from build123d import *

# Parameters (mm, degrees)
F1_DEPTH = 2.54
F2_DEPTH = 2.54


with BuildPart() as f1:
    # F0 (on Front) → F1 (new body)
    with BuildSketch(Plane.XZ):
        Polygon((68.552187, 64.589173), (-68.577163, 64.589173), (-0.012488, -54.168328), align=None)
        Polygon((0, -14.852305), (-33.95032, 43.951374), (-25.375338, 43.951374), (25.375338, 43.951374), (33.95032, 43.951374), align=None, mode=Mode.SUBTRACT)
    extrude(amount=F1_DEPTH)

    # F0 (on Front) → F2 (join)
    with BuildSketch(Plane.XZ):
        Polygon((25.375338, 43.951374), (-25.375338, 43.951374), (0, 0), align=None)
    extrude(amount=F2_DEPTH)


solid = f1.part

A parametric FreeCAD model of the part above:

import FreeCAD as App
import Part
import Sketcher
from FreeCAD import Vector
Q = App.Units.Quantity


def add_polygon(sketch, points):
    """Adds a closed chain of lines whose ends are joined by coincident constraints."""
    first, n = sketch.GeometryCount, len(points)
    for a, b in zip(points, points[1:] + points[:1]):
        sketch.addGeometry(Part.LineSegment(App.Vector(*a, 0), App.Vector(*b, 0)), False)
    for i in range(n):
        sketch.addConstraint(Sketcher.Constraint("Coincident", first + i, 2, first + (i + 1) % n, 1))

doc = App.newDocument("Part")
body = doc.addObject("PartDesign::Body", "Body")

sketch1 = body.newObject("Sketcher::SketchObject", "Sketch")
sketch1.AttachmentSupport = (doc.getObject("XZ_Plane"), [""])
sketch1.MapMode = "FlatFace"
add_polygon(sketch1, [(69, 65), (-69, 65), (0, -54)])
add_polygon(sketch1, [(34, 44), (0, -15), (-34, 44)])
sketch1.addConstraint(Sketcher.Constraint("Horizontal", 0))
sketch1.addConstraint(Sketcher.Constraint("Horizontal", 5))
sketch1.addConstraint(Sketcher.Constraint("PointOnObject", 3, 2, -2))
sketch1.addConstraint(Sketcher.Constraint("Parallel", 2, 3))
sketch1.addConstraint(Sketcher.Constraint("Parallel", 1, 4))
sketch1.addConstraint(Sketcher.Constraint("Equal", 1, 2))
sketch1.addConstraint(Sketcher.Constraint("Angle", 1, Q("-60 deg")))
sketch1.addConstraint(Sketcher.Constraint("DistanceX", 0, 2, 0, 1, 137.12935))
sketch1.addConstraint(Sketcher.Constraint("DistanceX", 5, 1, 5, 2, 67.90064))
sketch1.addConstraint(Sketcher.Constraint("DistanceY", 4, 2, 0, 2, 20.637799))
sketch1.addConstraint(Sketcher.Constraint("DistanceX", 1, 2, -1, 1, 0.012488))
sketch1.addConstraint(Sketcher.Constraint("DistanceY", 1, 2, -1, 1, 54.168328))
pad1 = body.newObject("PartDesign::Pad", "Pad")
pad1.Profile = sketch1
pad1.Length = Q("0.1 in")

sketch2 = body.newObject("Sketcher::SketchObject", "Sketch001")
sketch2.AttachmentSupport = (doc.getObject("XZ_Plane"), [""])
sketch2.MapMode = "FlatFace"
add_polygon(sketch2, [(25, 44), (-25, 44), (0, 0)])
sketch2.addConstraint(Sketcher.Constraint("Horizontal", 0))
sketch2.addConstraint(Sketcher.Constraint("Coincident", 1, 2, -1, 1))
sketch2.addConstraint(Sketcher.Constraint("Equal", 1, 2))
sketch2.addConstraint(Sketcher.Constraint("Angle", 1, Q("-60 deg")))
sketch2.addConstraint(Sketcher.Constraint("DistanceX", 0, 2, 0, 1, 50.750676))
pad2 = body.newObject("PartDesign::Pad", "Pad001")
pad2.Profile = sketch2
pad2.Length = Q("0.1 in")

doc.recompute()
